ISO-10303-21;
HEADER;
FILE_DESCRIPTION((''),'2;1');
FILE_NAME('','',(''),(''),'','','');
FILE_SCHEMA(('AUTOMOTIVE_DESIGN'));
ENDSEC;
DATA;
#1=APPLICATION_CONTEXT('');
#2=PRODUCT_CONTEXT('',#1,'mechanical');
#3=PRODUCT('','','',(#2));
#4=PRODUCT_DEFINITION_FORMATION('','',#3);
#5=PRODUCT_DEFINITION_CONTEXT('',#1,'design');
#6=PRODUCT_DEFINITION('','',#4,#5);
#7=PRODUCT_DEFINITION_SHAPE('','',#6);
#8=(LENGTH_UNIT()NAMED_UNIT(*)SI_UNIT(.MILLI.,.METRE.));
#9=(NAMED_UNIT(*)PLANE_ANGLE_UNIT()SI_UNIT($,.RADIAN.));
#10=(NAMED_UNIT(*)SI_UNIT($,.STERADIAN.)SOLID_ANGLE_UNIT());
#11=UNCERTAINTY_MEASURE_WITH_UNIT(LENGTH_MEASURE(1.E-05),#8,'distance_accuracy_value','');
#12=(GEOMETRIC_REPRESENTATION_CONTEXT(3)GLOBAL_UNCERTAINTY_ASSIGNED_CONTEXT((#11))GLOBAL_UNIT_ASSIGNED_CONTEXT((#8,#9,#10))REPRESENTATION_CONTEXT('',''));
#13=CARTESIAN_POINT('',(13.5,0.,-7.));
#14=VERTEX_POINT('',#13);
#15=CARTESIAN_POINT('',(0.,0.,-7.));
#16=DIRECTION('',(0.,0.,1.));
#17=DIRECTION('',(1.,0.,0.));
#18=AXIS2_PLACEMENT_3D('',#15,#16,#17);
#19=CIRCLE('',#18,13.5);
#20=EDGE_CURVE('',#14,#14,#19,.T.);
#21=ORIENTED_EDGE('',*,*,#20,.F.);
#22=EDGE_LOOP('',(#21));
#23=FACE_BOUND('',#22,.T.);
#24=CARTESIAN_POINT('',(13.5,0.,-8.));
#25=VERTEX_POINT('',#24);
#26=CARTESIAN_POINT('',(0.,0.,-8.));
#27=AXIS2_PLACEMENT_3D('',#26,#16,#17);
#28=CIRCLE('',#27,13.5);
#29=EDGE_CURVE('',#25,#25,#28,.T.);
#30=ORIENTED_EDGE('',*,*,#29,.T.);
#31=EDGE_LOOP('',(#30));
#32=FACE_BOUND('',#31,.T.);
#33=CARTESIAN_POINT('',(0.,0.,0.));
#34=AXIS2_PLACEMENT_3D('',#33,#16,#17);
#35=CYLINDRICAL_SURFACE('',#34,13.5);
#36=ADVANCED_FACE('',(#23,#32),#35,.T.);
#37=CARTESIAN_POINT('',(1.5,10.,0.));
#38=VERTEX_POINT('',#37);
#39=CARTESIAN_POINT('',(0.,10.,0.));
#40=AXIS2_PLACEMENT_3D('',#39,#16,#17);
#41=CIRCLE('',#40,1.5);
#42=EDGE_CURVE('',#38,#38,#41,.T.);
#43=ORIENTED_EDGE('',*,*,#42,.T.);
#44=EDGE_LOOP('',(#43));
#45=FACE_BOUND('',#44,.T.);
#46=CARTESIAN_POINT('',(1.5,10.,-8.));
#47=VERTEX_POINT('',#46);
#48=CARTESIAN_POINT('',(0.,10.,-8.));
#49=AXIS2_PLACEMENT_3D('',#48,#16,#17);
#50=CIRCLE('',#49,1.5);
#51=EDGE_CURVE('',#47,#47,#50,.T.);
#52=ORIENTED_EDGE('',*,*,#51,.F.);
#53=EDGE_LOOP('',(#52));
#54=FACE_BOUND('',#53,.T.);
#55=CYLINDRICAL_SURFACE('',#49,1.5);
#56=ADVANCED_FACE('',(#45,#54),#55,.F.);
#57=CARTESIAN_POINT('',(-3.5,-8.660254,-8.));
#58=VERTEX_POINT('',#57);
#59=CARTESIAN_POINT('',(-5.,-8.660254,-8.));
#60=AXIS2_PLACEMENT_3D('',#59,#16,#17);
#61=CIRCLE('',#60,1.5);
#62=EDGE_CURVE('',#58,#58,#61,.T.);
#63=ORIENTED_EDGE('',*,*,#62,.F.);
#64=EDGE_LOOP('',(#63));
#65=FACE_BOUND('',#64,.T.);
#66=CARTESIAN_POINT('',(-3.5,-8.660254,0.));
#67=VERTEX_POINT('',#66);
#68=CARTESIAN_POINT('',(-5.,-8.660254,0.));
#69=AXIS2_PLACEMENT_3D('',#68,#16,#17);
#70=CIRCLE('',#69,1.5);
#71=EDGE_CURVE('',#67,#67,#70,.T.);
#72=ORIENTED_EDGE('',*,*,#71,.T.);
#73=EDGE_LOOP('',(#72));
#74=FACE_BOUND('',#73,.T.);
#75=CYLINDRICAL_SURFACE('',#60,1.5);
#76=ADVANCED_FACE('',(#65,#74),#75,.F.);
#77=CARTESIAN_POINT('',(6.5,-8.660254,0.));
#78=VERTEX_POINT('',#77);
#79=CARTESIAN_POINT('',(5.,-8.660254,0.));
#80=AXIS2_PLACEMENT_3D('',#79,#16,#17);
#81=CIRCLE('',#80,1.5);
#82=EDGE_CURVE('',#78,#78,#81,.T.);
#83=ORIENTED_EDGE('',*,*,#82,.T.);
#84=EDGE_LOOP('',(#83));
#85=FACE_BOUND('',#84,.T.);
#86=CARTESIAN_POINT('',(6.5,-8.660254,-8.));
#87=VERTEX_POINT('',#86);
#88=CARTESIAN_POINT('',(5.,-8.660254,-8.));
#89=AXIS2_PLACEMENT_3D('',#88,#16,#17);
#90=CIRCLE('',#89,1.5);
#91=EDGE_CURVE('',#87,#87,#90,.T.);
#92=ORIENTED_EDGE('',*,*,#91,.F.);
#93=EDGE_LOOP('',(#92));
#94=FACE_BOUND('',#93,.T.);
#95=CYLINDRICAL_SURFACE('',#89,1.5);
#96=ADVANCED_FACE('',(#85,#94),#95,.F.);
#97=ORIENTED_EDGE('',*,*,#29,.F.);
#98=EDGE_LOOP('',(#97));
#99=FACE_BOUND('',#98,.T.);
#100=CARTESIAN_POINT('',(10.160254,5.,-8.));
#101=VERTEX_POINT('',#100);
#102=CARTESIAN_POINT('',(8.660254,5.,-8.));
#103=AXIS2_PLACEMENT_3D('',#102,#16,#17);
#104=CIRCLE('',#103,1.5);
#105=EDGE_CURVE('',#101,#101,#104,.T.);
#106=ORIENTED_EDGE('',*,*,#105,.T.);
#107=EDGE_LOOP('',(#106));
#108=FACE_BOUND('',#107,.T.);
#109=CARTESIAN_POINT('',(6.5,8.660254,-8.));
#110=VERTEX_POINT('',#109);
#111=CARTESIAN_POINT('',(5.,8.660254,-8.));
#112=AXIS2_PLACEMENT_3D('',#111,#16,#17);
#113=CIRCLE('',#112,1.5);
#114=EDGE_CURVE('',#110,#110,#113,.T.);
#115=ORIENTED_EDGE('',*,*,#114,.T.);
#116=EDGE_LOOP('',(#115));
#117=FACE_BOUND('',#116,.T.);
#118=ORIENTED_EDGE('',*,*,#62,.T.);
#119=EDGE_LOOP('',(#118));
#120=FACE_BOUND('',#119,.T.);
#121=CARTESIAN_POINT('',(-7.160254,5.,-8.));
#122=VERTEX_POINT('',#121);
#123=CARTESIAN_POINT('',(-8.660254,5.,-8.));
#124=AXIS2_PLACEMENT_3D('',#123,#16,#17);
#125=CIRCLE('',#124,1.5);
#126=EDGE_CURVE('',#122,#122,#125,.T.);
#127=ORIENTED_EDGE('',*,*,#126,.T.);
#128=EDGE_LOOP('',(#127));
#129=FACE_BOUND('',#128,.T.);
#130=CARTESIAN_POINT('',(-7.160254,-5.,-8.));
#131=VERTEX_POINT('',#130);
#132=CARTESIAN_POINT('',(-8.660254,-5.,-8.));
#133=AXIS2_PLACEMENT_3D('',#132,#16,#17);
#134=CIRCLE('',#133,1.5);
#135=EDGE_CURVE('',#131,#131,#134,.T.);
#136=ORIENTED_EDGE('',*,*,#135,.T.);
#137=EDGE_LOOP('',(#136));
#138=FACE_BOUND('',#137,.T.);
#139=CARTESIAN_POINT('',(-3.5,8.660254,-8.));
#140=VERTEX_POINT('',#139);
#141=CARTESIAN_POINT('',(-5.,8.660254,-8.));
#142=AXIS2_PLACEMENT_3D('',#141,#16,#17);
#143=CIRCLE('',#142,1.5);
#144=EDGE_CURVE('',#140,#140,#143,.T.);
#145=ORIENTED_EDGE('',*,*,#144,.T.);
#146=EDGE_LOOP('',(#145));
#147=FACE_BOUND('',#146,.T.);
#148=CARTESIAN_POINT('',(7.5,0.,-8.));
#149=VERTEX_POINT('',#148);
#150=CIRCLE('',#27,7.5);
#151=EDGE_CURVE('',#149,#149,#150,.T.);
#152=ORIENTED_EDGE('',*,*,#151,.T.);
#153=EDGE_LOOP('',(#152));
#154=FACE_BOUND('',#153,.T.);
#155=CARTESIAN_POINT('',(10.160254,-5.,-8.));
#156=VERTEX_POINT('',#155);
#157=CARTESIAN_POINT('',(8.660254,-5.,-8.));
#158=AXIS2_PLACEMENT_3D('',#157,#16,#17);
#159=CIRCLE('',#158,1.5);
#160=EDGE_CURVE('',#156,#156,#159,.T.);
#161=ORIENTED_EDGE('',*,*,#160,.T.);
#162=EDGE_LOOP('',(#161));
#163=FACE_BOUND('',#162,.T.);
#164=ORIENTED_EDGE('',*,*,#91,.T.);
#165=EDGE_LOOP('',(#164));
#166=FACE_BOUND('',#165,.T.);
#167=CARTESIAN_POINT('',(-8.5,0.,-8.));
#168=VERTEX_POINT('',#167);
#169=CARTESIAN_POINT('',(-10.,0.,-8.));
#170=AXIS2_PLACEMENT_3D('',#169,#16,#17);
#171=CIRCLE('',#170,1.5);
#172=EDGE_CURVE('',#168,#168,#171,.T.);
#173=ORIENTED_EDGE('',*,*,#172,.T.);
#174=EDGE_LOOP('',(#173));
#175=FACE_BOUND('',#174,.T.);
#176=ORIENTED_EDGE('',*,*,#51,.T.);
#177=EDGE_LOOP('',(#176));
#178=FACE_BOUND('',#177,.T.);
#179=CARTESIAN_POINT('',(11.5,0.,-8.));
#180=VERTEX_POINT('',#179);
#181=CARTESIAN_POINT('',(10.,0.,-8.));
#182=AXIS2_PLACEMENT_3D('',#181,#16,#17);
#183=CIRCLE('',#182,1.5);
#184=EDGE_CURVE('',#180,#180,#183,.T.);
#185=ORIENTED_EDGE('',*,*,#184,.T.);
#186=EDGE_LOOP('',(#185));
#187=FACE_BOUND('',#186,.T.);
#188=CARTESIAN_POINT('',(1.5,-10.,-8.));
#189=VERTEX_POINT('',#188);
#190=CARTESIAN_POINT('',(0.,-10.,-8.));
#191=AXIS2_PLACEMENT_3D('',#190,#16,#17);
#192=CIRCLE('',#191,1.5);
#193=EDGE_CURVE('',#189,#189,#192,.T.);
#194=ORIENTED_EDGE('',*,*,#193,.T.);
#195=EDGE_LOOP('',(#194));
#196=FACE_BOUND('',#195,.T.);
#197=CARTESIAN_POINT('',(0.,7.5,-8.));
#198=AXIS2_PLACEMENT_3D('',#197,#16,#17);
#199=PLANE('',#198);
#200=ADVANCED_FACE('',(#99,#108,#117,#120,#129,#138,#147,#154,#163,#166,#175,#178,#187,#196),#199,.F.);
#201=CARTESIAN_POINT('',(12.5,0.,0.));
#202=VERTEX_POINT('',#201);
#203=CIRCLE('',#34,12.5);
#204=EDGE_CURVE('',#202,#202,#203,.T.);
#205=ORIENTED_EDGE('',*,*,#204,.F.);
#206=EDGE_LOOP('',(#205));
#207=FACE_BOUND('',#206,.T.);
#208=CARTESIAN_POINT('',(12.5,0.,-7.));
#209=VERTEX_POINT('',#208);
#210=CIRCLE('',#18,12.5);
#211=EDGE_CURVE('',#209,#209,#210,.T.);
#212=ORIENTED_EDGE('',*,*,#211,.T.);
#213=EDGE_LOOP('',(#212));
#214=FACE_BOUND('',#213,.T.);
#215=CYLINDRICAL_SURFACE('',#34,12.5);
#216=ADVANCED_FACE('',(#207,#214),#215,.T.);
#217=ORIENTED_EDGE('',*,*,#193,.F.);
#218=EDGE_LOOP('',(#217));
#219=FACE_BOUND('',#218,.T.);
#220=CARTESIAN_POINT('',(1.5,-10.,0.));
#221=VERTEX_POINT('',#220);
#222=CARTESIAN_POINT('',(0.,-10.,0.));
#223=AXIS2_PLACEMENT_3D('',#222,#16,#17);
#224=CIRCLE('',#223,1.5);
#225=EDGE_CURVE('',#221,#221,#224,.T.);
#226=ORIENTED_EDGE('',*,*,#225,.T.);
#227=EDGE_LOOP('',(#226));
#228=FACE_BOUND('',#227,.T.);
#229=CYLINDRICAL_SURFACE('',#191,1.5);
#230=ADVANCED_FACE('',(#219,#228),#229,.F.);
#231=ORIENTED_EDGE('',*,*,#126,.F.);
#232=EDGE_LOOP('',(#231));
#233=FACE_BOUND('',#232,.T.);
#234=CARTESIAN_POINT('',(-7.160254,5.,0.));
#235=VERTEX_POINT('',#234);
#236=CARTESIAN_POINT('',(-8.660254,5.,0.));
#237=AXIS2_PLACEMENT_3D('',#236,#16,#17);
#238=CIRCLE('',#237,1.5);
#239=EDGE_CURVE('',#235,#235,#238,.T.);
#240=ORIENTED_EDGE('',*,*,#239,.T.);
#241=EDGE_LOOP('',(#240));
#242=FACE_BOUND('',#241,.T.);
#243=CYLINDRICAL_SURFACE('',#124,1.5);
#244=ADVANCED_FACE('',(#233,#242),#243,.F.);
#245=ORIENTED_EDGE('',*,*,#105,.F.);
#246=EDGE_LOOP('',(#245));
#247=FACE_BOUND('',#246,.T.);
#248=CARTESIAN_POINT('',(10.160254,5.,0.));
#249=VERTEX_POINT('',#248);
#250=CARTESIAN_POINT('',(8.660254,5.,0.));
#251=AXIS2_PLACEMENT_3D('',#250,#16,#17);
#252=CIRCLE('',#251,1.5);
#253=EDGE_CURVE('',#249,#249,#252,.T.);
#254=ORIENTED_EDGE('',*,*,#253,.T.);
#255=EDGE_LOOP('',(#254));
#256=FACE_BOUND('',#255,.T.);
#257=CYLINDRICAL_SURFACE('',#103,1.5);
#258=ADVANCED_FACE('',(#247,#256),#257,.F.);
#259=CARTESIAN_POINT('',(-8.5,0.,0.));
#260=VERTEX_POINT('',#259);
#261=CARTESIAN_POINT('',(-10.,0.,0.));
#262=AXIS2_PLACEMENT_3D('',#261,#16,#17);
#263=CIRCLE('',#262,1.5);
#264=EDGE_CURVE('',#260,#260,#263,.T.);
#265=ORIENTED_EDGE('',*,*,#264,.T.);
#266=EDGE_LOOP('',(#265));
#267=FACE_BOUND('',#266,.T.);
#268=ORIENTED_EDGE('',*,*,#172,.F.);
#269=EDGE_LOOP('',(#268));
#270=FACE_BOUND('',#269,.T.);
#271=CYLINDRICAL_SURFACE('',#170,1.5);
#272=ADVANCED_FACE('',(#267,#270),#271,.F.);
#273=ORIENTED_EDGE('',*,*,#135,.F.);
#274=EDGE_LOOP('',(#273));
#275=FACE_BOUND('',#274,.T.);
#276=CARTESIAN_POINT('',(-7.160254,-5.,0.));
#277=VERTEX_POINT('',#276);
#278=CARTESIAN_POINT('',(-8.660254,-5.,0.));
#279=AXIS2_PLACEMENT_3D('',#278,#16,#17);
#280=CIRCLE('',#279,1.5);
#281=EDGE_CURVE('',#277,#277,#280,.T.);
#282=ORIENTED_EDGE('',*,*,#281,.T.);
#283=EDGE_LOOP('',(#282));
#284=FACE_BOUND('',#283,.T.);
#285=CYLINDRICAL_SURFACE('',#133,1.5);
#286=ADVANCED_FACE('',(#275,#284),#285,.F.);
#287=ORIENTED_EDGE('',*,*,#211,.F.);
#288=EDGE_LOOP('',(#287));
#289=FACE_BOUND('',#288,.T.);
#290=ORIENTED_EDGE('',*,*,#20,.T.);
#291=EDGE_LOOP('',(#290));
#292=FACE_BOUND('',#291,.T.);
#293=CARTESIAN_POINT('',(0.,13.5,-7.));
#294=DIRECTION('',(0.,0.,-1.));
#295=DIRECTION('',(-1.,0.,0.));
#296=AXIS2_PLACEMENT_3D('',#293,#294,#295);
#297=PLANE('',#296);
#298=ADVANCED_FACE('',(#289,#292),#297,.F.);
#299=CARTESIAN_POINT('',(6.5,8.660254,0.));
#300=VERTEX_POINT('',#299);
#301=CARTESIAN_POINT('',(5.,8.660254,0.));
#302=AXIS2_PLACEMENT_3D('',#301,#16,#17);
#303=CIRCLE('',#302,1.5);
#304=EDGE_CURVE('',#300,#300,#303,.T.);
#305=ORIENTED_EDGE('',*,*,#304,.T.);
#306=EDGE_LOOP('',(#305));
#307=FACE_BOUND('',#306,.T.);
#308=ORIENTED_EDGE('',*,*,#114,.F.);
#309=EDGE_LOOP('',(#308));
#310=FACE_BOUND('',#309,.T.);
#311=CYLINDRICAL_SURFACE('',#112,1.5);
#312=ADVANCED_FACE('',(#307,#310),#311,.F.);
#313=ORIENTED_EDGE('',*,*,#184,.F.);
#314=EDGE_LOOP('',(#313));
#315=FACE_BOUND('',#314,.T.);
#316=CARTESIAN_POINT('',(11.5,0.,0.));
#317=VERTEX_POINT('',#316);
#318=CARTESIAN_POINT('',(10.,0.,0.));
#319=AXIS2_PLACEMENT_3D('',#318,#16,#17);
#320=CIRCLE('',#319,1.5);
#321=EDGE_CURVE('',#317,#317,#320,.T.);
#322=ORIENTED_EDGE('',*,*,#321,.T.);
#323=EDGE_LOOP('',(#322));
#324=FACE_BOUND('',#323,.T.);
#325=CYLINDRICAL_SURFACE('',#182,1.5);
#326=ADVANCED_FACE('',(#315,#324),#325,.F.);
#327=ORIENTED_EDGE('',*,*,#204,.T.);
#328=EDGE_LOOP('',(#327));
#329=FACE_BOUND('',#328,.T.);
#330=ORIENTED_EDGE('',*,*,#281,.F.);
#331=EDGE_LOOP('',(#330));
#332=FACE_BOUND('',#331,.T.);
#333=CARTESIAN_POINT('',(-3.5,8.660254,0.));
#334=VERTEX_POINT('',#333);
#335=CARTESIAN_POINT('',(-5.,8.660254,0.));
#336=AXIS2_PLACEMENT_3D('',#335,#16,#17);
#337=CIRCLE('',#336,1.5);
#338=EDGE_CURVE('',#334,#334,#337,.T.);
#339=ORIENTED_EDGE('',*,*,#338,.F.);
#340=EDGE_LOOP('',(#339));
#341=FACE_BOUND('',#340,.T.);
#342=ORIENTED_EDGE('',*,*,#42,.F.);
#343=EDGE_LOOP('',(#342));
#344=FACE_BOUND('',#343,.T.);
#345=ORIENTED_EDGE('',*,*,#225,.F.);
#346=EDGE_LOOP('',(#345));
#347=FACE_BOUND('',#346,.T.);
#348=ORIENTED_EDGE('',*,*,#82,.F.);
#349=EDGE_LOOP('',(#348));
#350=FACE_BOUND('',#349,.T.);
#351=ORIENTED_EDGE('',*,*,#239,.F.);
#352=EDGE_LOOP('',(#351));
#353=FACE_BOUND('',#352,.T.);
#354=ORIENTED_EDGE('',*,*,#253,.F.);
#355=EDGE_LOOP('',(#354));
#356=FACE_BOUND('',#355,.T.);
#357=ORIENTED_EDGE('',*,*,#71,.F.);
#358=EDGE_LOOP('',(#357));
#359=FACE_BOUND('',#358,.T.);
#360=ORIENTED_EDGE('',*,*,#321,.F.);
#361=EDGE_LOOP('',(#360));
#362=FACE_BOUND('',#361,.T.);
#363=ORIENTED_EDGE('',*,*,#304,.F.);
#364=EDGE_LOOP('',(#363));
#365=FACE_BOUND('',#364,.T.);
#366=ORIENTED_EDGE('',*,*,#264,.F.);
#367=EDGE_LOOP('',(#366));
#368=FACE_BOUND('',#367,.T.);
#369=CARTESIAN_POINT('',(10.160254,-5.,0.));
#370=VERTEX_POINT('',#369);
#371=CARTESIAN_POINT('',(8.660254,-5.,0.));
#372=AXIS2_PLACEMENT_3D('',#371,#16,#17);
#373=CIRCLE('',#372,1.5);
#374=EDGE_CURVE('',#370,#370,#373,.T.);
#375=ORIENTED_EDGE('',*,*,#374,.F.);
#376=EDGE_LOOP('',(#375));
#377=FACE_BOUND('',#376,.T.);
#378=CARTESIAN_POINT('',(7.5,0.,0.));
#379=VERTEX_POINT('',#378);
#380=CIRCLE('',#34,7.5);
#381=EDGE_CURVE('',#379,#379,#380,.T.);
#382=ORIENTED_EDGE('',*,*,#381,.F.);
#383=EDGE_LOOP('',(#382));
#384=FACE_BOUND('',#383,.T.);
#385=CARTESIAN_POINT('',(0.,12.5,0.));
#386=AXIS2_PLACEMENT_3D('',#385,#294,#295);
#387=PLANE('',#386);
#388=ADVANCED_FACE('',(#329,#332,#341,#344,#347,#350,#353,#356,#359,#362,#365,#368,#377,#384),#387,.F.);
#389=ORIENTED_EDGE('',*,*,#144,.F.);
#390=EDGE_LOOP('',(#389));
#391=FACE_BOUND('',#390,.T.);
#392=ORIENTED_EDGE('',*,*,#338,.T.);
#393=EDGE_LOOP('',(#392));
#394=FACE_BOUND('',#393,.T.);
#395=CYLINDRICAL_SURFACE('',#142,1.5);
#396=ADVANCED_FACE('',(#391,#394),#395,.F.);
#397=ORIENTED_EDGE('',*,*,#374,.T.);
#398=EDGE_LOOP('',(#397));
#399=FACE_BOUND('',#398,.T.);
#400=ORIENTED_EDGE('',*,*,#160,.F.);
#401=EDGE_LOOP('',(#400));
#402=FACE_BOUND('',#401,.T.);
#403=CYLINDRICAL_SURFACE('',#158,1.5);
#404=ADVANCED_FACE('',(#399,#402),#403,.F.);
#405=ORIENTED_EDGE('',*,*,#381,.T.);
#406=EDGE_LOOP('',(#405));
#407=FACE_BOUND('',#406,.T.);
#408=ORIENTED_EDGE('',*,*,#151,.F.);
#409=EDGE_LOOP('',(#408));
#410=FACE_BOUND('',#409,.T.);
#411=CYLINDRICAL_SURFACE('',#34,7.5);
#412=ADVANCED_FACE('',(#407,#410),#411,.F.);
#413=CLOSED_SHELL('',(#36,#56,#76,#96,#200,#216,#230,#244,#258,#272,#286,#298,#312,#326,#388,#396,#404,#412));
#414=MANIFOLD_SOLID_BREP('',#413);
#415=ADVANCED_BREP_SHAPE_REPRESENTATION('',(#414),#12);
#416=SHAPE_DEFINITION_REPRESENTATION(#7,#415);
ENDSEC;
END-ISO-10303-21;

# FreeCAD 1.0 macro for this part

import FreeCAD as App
import Part
import Sketcher
Q = App.Units.Quantity


def add_polygon(sketch, points):
    """Adds a closed chain of lines whose ends are joined by coincident constraints."""
    first, n = sketch.GeometryCount, len(points)
    for a, b in zip(points, points[1:] + points[:1]):
        sketch.addGeometry(Part.LineSegment(App.Vector(*a, 0), App.Vector(*b, 0)), False)
    for i in range(n):
        sketch.addConstraint(Sketcher.Constraint("Coincident", first + i, 2, first + (i + 1) % n, 1))

doc = App.newDocument("Part")
body = doc.addObject("PartDesign::Body", "Body")

# Sketch on YZ plane
sketch1 = body.newObject("Sketcher::SketchObject", "Sketch")
sketch1.AttachmentSupport = (doc.getObject("YZ_Plane"), [""])
sketch1.MapMode = "FlatFace"
add_polygon(sketch1, [(7.5, 0), (7.5, -8), (13.5, -8), (13.5, -7), (12.5, -7), (12.5, 0)])  # lines 0-5
sketch1.addConstraint([
    Sketcher.Constraint("Vertical", 0),
    Sketcher.Constraint("Horizontal", 1),
    Sketcher.Constraint("Vertical", 2),
    Sketcher.Constraint("Horizontal", 3),
    Sketcher.Constraint("Vertical", 4),
    Sketcher.Constraint("Horizontal", 5),
    Sketcher.Constraint("PointOnObject", 4, 2, -1),
    Sketcher.Constraint("Equal", 3, 2),
    Sketcher.Constraint("DistanceX", 1, 1, 1, 2, Q("6 mm")),
    Sketcher.Constraint("DistanceX", 3, 2, 3, 1, Q("1 mm")),
    Sketcher.Constraint("DistanceY", 0, 2, 0, 1, Q("8 mm")),
    Sketcher.Constraint("DistanceX", -1, 1, 0, 2, Q("7.5 mm")),
])
revolution = body.newObject("PartDesign::Revolution", "Revolution")
revolution.Profile = sketch1
revolution.ReferenceAxis = (sketch1, ["V_Axis"])
revolution.Angle = 360

# Sketch on XY plane
sketch2 = body.newObject("Sketcher::SketchObject", "Sketch001")
sketch2.AttachmentSupport = (doc.getObject("XY_Plane"), [""])
sketch2.MapMode = "FlatFace"
sketch2.addGeometry([
    Part.Circle(App.Vector(0, 10, 0), App.Vector(0, 0, 1), 1.5),  # 0
    Part.Circle(App.Vector(5, 8.660254, 0), App.Vector(0, 0, 1), 1.5),  # 1
    Part.Circle(App.Vector(8.660254, 5, 0), App.Vector(0, 0, 1), 1.5),  # 2
    Part.Circle(App.Vector(10, 0, 0), App.Vector(0, 0, 1), 1.5),  # 3
    Part.Circle(App.Vector(8.660254, -5, 0), App.Vector(0, 0, 1), 1.5),  # 4
    Part.Circle(App.Vector(5, -8.660254, 0), App.Vector(0, 0, 1), 1.5),  # 5
    Part.Circle(App.Vector(0, -10, 0), App.Vector(0, 0, 1), 1.5),  # 6
    Part.Circle(App.Vector(-5, -8.660254, 0), App.Vector(0, 0, 1), 1.5),  # 7
    Part.Circle(App.Vector(-8.660254, -5, 0), App.Vector(0, 0, 1), 1.5),  # 8
    Part.Circle(App.Vector(-10, 0, 0), App.Vector(0, 0, 1), 1.5),  # 9
    Part.Circle(App.Vector(-8.660254, 5, 0), App.Vector(0, 0, 1), 1.5),  # 10
    Part.Circle(App.Vector(-5, 8.660254, 0), App.Vector(0, 0, 1), 1.5),  # 11
], False)
sketch2.addConstraint([
    Sketcher.Constraint("Equal", 0, 1),
    Sketcher.Constraint("Equal", 1, 2),
    Sketcher.Constraint("Equal", 2, 3),
    Sketcher.Constraint("Equal", 3, 4),
    Sketcher.Constraint("Equal", 4, 5),
    Sketcher.Constraint("Equal", 5, 6),
    Sketcher.Constraint("Equal", 6, 7),
    Sketcher.Constraint("Equal", 7, 8),
    Sketcher.Constraint("Equal", 8, 9),
    Sketcher.Constraint("Equal", 9, 10),
    Sketcher.Constraint("Equal", 10, 11),
    Sketcher.Constraint("Symmetric", 0, 3, 6, 3, -1, 1),
    Sketcher.Constraint("Symmetric", 1, 3, 7, 3, -1, 1),
    Sketcher.Constraint("Symmetric", 2, 3, 8, 3, -1, 1),
    Sketcher.Constraint("Symmetric", 3, 3, 9, 3, -1, 1),
    Sketcher.Constraint("Symmetric", 4, 3, 10, 3, -1, 1),
    Sketcher.Constraint("Symmetric", 5, 3, 11, 3, -1, 1),
    Sketcher.Constraint("Symmetric", 5, 3, 7, 3, -2),
    Sketcher.Constraint("Symmetric", 4, 3, 8, 3, -2),
    Sketcher.Constraint("PointOnObject", 0, 3, -2),
    Sketcher.Constraint("PointOnObject", 3, 3, -1),
    Sketcher.Constraint("Diameter", 0, Q("3 mm")),
    Sketcher.Constraint("DistanceY", -1, 1, 0, 3, Q("10 mm")),
    Sketcher.Constraint("DistanceX", -1, 1, 1, 3, Q("5 mm")),
    Sketcher.Constraint("DistanceY", -1, 1, 2, 3, Q("5 mm")),
    Sketcher.Constraint("DistanceX", -1, 1, 3, 3, Q("10 mm")),
    Sketcher.Constraint("DistanceY", 5, 3, 1, 3, Q("17.320508 mm")),
    Sketcher.Constraint("DistanceX", 8, 3, 4, 3, Q("17.320508 mm")),
])
pocket1 = body.newObject("PartDesign::Pocket", "Pocket")
pocket1.Profile = sketch2
pocket1.Type = "ThroughAll"

doc.recompute()
